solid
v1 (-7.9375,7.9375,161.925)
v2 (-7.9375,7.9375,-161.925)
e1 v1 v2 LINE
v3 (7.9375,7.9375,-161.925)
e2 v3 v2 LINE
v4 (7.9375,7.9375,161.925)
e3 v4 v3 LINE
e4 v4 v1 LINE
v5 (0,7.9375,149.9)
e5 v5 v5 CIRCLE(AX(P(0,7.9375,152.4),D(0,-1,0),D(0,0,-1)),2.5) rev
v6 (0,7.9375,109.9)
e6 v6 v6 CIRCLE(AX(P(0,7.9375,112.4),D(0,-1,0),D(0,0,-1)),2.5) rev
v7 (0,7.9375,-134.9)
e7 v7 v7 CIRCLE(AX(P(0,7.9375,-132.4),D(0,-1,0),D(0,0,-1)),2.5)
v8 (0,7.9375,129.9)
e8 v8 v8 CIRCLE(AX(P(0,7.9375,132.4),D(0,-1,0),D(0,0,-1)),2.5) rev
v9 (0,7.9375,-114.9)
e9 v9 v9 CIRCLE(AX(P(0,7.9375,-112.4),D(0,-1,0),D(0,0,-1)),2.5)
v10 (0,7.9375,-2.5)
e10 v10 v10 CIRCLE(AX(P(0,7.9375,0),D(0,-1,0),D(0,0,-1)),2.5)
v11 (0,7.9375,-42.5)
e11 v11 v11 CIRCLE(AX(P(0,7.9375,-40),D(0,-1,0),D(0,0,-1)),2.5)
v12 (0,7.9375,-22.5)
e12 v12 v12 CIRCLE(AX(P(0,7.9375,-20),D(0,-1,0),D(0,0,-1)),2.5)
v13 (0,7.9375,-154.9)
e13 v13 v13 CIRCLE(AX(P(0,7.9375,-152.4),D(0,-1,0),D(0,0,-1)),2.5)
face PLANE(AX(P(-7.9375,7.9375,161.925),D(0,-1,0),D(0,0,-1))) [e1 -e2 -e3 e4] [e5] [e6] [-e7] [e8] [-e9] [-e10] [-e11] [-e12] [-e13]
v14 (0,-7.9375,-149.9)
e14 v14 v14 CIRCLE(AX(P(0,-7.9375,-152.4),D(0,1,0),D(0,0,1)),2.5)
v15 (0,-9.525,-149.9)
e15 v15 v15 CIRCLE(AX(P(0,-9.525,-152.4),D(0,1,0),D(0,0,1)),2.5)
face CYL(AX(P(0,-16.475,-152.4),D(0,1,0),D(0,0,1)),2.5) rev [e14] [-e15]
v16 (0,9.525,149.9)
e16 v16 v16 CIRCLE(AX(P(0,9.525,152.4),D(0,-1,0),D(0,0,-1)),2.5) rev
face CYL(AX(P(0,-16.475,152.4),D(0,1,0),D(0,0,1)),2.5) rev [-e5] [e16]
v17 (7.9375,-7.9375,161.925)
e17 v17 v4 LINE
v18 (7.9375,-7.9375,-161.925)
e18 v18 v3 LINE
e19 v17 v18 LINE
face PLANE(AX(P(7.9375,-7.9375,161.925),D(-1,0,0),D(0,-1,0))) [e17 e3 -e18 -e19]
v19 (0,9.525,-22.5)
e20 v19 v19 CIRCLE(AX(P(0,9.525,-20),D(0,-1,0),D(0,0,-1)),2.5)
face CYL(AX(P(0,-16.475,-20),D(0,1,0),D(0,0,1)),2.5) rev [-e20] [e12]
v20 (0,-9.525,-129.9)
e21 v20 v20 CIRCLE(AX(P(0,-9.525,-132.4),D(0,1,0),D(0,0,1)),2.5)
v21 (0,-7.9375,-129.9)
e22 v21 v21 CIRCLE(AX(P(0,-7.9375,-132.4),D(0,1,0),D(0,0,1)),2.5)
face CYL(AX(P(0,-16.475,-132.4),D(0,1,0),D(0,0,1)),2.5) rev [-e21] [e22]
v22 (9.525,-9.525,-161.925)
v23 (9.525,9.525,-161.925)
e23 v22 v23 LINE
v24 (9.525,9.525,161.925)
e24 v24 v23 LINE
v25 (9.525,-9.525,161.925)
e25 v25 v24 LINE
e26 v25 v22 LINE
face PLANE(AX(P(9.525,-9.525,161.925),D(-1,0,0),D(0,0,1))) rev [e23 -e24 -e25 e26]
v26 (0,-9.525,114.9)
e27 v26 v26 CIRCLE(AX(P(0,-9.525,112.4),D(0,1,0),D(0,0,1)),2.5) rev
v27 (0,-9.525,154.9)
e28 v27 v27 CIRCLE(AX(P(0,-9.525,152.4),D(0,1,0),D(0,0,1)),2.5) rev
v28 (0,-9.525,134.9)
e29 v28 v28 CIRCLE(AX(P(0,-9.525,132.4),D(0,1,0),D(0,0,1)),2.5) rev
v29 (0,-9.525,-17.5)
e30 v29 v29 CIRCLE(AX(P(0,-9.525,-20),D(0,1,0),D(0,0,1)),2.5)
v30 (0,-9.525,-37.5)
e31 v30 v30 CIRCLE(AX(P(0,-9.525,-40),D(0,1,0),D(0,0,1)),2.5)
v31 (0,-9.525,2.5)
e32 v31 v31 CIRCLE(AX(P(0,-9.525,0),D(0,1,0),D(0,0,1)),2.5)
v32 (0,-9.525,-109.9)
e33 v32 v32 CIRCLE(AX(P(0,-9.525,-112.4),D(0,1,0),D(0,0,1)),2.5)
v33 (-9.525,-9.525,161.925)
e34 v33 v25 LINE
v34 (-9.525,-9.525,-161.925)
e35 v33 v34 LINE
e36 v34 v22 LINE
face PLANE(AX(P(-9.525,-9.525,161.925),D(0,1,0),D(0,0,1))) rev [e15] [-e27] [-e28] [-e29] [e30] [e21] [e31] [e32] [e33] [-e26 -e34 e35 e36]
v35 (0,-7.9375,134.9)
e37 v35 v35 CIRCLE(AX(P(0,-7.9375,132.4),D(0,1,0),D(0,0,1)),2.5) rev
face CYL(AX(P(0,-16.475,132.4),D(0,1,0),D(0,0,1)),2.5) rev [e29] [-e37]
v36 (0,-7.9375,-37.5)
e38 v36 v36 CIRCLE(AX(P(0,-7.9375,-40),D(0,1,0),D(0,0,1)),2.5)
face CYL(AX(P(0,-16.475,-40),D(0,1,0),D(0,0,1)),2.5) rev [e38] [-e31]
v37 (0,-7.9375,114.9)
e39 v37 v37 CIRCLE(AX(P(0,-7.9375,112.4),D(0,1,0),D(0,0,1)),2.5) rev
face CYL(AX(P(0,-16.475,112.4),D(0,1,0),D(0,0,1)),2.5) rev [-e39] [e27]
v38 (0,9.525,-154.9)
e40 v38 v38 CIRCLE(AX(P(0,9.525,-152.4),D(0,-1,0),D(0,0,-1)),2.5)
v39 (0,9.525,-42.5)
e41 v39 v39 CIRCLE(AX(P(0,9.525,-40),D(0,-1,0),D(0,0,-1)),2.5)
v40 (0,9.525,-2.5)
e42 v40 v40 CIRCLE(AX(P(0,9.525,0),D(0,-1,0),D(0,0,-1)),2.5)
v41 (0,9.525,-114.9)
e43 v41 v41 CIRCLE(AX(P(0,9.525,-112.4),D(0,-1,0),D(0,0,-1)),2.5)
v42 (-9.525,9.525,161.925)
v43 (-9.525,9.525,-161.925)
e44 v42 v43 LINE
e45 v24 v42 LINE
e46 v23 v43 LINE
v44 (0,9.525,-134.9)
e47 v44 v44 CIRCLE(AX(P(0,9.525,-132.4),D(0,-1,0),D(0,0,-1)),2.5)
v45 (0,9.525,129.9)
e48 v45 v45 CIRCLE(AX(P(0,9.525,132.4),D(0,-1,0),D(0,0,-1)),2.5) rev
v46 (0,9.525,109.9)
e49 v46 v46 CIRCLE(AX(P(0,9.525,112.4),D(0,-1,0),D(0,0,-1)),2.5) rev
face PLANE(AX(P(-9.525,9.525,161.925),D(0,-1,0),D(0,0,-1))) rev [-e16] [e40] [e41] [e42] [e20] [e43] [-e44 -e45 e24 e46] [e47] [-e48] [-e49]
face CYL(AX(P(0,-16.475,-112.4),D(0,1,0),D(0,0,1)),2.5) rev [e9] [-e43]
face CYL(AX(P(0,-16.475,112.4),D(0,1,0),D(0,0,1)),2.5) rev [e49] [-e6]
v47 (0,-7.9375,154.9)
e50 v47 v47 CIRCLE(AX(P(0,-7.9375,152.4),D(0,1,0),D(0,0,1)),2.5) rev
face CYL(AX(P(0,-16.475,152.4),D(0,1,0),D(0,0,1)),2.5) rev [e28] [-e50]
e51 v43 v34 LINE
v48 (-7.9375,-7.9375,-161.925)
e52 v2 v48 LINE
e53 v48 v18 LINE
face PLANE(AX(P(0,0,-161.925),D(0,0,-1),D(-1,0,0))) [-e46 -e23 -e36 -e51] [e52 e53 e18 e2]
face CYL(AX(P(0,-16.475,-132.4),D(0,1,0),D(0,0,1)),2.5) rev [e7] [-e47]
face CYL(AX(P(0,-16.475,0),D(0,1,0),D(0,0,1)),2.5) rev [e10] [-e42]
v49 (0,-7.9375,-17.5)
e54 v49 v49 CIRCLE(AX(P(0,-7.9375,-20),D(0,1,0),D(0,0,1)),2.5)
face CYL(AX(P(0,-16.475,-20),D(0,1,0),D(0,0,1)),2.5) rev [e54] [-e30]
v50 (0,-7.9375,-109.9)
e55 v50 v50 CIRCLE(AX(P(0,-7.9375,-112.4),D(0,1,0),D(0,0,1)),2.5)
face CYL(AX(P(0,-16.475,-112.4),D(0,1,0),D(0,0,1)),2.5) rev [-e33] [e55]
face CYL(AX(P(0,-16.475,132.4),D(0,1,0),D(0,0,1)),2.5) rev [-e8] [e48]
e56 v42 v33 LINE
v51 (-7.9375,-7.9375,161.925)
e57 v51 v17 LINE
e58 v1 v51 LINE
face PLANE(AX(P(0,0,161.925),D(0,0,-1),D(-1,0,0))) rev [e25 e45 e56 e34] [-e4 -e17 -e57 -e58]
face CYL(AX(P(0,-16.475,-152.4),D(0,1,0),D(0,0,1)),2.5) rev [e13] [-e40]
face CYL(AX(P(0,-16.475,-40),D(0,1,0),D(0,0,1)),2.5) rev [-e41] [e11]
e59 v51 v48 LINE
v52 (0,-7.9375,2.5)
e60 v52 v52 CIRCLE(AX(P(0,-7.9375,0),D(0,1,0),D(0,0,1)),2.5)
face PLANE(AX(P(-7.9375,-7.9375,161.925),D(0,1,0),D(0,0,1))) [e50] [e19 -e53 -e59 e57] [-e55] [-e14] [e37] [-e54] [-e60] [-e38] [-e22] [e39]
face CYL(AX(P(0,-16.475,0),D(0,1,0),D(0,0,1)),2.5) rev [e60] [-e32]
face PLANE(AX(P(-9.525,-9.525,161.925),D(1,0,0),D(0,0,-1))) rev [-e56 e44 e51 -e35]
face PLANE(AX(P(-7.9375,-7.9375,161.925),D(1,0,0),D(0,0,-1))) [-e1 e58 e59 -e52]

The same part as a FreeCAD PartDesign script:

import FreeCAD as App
import Part
import Sketcher
from FreeCAD import Vector
Q = App.Units.Quantity


def add_polygon(sketch, points):
    """Adds a closed chain of lines whose ends are joined by coincident constraints."""
    first, n = sketch.GeometryCount, len(points)
    for a, b in zip(points, points[1:] + points[:1]):
        sketch.addGeometry(Part.LineSegment(App.Vector(*a, 0), App.Vector(*b, 0)), False)
    for i in range(n):
        sketch.addConstraint(Sketcher.Constraint("Coincident", first + i, 2, first + (i + 1) % n, 1))

doc = App.newDocument("Part")
params = doc.addObject("Spreadsheet::Sheet", "Params")
for row, (alias, value) in enumerate([
    ("sketch1_width", "0.75 in"),
    ("sketch1_width2", "0.625 in"),
    ("pad1_length", "12.75 in"),
    ("pocket1_length", "30 mm"),
    ("pocket2_length", "30 mm"),
], start=1):
    params.set(f"A{row}", alias)
    params.set(f"B{row}", "=" + value)
    params.setAlias(f"B{row}", alias)

body = doc.addObject("PartDesign::Body", "Body")

sketch1 = doc.addObject("Sketcher::SketchObject", "Sketch")
body.addObject(sketch1)
sketch1.AttachmentSupport = (doc.XY_Plane, [""])
sketch1.MapMode = "FlatFace"
add_polygon(sketch1, [(-10, 10), (-10, -10), (10, -10), (10, 10)])
add_polygon(sketch1, [(8, -8), (-8, -8), (-8, 8), (8, 8)])
sketch1.addConstraint([
    Sketcher.Constraint("Vertical", 0),
    Sketcher.Constraint("Horizontal", 1),
    Sketcher.Constraint("Vertical", 2),
    Sketcher.Constraint("Horizontal", 3),
    Sketcher.Constraint("Horizontal", 4),
    Sketcher.Constraint("Vertical", 5),
    Sketcher.Constraint("Horizontal", 6),
    Sketcher.Constraint("Vertical", 7),
    Sketcher.Constraint("Symmetric", 0, 2, 2, 2, -1, 1),
    Sketcher.Constraint("Symmetric", 4, 2, 6, 2, -1, 1),
    Sketcher.Constraint("Equal", 3, 0),
    Sketcher.Constraint("Equal", 6, 5),
    Sketcher.Constraint("DistanceX", 1, 1, 1, 2, Q("0.75 in")),
    Sketcher.Constraint("DistanceX", 4, 2, 4, 1, Q("0.625 in")),
])
sketch1.setExpression("Constraints[20]", "Params.sketch1_width")
sketch1.setExpression("Constraints[21]", "Params.sketch1_width2")
pad1 = doc.addObject("PartDesign::Pad", "Pad")
body.addObject(pad1)
pad1.Profile = sketch1
pad1.setExpression("Length", "Params.pad1_length")
pad1.Midplane = True

sketch2 = doc.addObject("Sketcher::SketchObject", "Sketch001")
body.addObject(sketch2)
sketch2.AttachmentSupport = (doc.XZ_Plane, [""])
sketch2.MapMode = "FlatFace"
sketch2.AttachmentOffset = App.Placement(Vector(0, 0, -13.525), App.Rotation())
sketch2.addGeometry([
    Part.Circle(Vector(0, -152.4, 0), Vector(0, 0, 1), 2.5),
    Part.Circle(Vector(0, -132.4, 0), Vector(0, 0, 1), 2.5),
    Part.Circle(Vector(0, -112.4, 0), Vector(0, 0, 1), 2.5),
], False)
sketch2.addConstraint([
    Sketcher.Constraint("Equal", 0, 1),
    Sketcher.Constraint("Equal", 1, 2),
    Sketcher.Constraint("PointOnObject", 0, 3, -2),
    Sketcher.Constraint("PointOnObject", 1, 3, -2),
    Sketcher.Constraint("PointOnObject", 2, 3, -2),
    Sketcher.Constraint("DistanceY", 0, 3, -1, 1, Q("6 in")),
    Sketcher.Constraint("Diameter", 0, Q("5 mm")),
    Sketcher.Constraint("DistanceY", 1, 3, -1, 1, Q("132.4 mm")),
    Sketcher.Constraint("DistanceY", 2, 3, -1, 1, Q("112.4 mm")),
])
pocket1 = doc.addObject("PartDesign::Pocket", "Pocket")
body.addObject(pocket1)
pocket1.Profile = sketch2
pocket1.setExpression("Length", "Params.pocket1_length")
pocket1.Reversed = True
doc.recompute()

mirrored = doc.addObject("PartDesign::Mirrored", "Mirrored")
body.addObject(mirrored)
mirrored.Originals = [pocket1]
mirrored.MirrorPlane = (doc.XY_Plane, [""])
body.Tip = mirrored

sketch3 = doc.addObject("Sketcher::SketchObject", "Sketch002")
body.addObject(sketch3)
sketch3.AttachmentSupport = (doc.XZ_Plane, [""])
sketch3.MapMode = "FlatFace"
sketch3.AttachmentOffset = App.Placement(Vector(0, 0, -13.525), App.Rotation())
sketch3.addGeometry([
    Part.Circle(Vector(0, 0, 0), Vector(0, 0, 1), 2.5),
    Part.Circle(Vector(0, -20, 0), Vector(0, 0, 1), 2.5),
    Part.Circle(Vector(0, -40, 0), Vector(0, 0, 1), 2.5),
], False)
sketch3.addConstraint([
    Sketcher.Constraint("Coincident", 0, 3, -1, 1),
    Sketcher.Constraint("Equal", 0, 1),
    Sketcher.Constraint("Equal", 1, 2),
    Sketcher.Constraint("PointOnObject", 1, 3, -2),
    Sketcher.Constraint("PointOnObject", 2, 3, -2),
    Sketcher.Constraint("Diameter", 0, Q("5 mm")),
    Sketcher.Constraint("DistanceY", 1, 3, -1, 1, Q("20 mm")),
    Sketcher.Constraint("DistanceY", 2, 3, -1, 1, Q("40 mm")),
])
pocket2 = doc.addObject("PartDesign::Pocket", "Pocket001")
body.addObject(pocket2)
pocket2.Profile = sketch3
pocket2.setExpression("Length", "Params.pocket2_length")
pocket2.Reversed = True

doc.recompute()
